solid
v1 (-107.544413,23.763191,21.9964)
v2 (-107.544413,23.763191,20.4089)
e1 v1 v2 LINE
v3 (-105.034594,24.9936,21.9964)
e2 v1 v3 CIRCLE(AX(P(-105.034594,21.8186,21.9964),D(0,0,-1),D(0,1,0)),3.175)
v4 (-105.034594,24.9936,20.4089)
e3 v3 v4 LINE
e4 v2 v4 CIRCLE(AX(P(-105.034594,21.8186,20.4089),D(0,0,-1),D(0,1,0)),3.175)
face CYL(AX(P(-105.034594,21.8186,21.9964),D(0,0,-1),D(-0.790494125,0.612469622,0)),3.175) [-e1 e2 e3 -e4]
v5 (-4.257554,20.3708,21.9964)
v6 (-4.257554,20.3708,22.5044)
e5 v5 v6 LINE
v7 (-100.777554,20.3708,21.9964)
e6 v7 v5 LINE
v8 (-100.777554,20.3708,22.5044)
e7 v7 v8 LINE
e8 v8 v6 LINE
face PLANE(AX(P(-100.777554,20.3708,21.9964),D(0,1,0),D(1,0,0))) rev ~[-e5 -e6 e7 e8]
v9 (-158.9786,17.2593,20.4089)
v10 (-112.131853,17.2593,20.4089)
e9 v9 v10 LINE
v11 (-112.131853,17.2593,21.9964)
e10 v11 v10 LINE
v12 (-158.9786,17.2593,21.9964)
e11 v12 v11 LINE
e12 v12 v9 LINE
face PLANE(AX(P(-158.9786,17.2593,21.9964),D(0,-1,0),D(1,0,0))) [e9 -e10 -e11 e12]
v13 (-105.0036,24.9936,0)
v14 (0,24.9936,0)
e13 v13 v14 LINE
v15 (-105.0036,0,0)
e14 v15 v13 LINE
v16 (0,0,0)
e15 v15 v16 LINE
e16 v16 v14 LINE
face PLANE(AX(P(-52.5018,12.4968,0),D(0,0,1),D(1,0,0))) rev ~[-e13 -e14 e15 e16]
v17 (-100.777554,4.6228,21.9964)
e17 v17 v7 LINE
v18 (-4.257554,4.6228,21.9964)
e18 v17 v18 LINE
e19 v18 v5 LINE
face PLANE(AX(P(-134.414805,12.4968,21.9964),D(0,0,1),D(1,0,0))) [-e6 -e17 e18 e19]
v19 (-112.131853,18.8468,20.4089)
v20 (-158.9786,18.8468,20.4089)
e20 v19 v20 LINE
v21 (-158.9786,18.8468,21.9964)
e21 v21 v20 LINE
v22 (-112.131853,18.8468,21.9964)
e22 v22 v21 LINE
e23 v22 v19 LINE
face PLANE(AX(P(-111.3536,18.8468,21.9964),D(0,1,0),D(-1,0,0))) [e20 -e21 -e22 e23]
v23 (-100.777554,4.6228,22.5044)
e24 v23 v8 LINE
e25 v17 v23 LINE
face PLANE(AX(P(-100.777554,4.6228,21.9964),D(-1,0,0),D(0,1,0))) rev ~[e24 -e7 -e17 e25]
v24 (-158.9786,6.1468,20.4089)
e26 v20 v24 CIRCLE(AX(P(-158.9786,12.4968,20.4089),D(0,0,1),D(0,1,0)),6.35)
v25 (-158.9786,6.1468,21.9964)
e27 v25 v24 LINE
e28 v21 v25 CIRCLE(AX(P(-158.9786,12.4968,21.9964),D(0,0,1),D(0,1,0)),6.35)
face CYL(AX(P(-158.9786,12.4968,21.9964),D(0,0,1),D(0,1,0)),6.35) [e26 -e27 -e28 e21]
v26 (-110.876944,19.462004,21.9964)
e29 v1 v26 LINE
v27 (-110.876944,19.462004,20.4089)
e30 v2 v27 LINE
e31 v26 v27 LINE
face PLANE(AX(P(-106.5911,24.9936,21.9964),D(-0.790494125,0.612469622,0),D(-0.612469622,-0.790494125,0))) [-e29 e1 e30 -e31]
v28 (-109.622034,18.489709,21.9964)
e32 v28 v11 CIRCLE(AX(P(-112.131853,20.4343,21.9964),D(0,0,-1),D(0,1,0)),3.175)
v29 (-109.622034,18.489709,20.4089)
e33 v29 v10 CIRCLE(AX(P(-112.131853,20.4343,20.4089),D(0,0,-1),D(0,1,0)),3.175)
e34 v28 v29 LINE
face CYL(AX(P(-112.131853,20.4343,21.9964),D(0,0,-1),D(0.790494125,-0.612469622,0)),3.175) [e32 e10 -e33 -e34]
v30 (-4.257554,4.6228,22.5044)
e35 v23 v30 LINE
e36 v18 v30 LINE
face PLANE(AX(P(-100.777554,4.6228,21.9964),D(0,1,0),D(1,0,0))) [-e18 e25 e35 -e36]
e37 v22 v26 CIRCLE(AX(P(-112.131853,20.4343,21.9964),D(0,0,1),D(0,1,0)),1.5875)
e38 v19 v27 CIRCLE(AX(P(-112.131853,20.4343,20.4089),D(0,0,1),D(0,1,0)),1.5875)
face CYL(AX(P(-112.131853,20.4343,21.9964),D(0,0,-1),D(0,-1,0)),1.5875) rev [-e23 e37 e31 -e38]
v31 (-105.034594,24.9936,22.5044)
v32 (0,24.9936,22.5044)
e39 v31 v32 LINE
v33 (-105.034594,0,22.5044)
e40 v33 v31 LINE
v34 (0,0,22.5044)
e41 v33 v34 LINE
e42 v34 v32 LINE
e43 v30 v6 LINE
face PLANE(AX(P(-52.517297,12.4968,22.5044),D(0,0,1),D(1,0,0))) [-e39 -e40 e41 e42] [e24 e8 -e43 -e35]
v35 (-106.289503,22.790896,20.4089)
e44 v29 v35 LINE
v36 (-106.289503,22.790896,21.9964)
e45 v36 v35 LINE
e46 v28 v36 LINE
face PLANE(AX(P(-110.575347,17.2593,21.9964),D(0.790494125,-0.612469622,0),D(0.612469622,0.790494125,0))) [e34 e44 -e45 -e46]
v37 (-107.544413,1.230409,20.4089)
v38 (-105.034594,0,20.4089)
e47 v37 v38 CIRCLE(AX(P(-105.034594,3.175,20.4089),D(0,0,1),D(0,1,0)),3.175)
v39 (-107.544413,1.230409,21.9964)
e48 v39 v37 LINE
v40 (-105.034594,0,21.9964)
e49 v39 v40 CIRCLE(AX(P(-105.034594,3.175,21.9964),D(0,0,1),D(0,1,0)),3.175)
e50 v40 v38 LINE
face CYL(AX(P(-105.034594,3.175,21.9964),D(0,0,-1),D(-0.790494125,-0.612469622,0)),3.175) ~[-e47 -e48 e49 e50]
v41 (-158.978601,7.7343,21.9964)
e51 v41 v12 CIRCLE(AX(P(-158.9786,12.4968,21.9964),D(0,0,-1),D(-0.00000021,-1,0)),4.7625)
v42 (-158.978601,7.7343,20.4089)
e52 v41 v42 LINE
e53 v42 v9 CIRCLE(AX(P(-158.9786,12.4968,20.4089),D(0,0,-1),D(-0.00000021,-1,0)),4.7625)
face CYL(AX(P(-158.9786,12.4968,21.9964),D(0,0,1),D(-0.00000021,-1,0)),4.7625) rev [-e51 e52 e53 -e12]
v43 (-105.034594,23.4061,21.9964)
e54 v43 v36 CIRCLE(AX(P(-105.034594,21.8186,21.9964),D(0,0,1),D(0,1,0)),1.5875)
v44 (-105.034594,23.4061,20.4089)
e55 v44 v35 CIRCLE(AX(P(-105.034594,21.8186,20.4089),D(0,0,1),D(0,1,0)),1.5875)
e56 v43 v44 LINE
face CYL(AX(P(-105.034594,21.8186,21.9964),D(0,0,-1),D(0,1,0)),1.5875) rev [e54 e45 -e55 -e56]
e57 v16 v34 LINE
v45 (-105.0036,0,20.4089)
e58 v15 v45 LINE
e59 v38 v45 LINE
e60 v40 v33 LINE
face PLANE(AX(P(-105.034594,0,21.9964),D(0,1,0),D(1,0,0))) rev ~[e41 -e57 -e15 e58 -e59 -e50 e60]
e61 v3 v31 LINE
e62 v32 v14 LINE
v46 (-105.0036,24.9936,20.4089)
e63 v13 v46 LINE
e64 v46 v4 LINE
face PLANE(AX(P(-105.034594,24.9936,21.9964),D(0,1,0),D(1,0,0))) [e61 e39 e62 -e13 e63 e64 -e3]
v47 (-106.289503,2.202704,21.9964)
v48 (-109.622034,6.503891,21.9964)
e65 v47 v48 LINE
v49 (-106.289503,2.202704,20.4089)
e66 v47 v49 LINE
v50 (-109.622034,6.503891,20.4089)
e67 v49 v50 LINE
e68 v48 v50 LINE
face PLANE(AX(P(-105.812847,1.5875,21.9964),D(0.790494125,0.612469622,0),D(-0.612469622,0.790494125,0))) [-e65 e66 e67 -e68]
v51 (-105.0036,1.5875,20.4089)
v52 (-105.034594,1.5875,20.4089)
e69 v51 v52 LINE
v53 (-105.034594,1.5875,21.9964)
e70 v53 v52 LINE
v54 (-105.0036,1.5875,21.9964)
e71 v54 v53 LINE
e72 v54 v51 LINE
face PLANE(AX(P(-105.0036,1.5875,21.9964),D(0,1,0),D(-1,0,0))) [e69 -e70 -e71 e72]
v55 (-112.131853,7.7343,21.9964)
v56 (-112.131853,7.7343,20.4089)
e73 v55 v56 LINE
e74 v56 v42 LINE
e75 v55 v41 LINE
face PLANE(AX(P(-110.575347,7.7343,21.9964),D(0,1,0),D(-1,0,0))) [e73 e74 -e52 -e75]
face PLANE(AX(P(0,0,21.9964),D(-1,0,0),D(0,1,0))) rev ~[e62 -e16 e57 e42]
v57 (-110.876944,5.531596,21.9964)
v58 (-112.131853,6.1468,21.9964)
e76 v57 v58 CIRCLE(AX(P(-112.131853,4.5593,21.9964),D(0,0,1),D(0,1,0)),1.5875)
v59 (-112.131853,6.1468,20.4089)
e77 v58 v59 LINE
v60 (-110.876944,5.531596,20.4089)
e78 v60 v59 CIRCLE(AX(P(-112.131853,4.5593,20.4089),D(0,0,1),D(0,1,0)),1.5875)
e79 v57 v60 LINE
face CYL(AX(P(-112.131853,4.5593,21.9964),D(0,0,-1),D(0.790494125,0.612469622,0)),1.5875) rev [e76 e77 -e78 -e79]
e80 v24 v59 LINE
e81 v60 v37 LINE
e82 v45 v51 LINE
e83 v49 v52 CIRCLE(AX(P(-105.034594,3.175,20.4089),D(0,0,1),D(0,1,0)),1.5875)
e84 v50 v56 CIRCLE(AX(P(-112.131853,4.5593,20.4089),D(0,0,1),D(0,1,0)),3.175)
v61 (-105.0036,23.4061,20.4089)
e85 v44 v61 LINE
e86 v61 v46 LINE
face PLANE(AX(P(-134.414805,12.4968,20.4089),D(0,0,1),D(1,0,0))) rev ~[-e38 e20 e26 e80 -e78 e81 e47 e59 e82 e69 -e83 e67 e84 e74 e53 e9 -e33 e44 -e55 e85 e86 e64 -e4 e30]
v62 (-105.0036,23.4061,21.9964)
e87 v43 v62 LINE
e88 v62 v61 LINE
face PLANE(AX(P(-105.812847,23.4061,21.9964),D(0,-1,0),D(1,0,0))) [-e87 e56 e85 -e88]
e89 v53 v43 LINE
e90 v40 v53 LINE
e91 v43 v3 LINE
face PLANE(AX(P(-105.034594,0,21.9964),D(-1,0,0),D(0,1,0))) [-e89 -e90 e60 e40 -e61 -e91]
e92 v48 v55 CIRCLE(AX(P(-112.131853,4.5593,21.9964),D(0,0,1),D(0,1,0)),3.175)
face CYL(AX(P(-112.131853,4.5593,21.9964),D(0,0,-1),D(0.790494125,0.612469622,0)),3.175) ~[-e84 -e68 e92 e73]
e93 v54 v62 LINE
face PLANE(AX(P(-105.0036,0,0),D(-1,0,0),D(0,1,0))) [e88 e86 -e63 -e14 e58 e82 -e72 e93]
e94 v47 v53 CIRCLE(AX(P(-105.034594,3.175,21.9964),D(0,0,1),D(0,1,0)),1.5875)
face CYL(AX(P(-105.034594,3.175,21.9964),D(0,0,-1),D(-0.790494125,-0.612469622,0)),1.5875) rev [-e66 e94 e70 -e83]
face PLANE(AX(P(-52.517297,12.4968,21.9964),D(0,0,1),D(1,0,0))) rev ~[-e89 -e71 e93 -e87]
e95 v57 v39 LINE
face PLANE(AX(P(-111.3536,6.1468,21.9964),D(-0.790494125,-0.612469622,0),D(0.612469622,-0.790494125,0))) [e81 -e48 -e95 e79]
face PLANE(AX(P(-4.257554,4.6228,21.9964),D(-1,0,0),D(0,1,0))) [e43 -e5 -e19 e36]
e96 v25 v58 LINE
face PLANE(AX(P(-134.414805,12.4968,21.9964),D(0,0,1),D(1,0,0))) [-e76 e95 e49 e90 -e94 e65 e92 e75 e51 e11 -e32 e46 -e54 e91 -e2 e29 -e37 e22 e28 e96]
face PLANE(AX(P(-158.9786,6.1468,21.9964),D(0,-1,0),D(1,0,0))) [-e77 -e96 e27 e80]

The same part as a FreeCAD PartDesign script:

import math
import FreeCAD as App
import Part
import Sketcher

V = App.Vector
Q = App.Units.Quantity


def edges_at(feature, points):
    """Names of the edges that pass closest to the given points."""
    edges = feature.Shape.Edges
    near = lambda p: min(range(len(edges)), key=lambda i: edges[i].distToShape(Part.Vertex(*p))[0])
    return sorted({f"Edge{near(p) + 1}" for p in points})


def add_polygon(sketch, points):
    """Adds a closed chain of lines whose ends are joined by coincident constraints."""
    first, n = sketch.GeometryCount, len(points)
    for a, b in zip(points, points[1:] + points[:1]):
        sketch.addGeometry(Part.LineSegment(App.Vector(*a, 0), App.Vector(*b, 0)), False)
    for i in range(n):
        sketch.addConstraint(Sketcher.Constraint("Coincident", first + i, 2, first + (i + 1) % n, 1))

doc = App.newDocument("Part")
body = doc.addObject("PartDesign::Body", "Body")

# Sketch on XY plane
sketch1 = body.newObject("Sketcher::SketchObject", "Sketch")
sketch1.AttachmentSupport = (doc.getObject("XY_Plane"), [""])
sketch1.MapMode = "FlatFace"
add_polygon(sketch1, [(-105, 25), (-105, 0), (0, 0), (0, 25)])  # lines 0-3
sketch1.addConstraint([
    Sketcher.Constraint("Vertical", 0),
    Sketcher.Constraint("Horizontal", 1),
    Sketcher.Constraint("Vertical", 2),
    Sketcher.Constraint("Horizontal", 3),
    Sketcher.Constraint("Coincident", 1, 2, -1, 1),
    Sketcher.Constraint("DistanceX", 1, 1, 1, 2, Q("4.134 in")),
    Sketcher.Constraint("DistanceY", 0, 2, 0, 1, Q("0.984 in")),
])
pad1 = body.newObject("PartDesign::Pad", "Pad")
pad1.Profile = sketch1
pad1.Length = Q("0.866 in")

# Sketch on XY plane
sketch2 = body.newObject("Sketcher::SketchObject", "Sketch001")
sketch2.AttachmentSupport = (doc.getObject("XY_Plane"), [""])
sketch2.MapMode = "FlatFace"
sketch2.AttachmentOffset = App.Placement(V(0, 0, 0.866 * 25.4), App.Rotation())
sketch2.addGeometry([
    Part.LineSegment(V(-111.4, 18.8, 0), V(-159, 18.8, 0)),  # 0
    Part.ArcOfCircle(Part.Circle(V(-159, 12.5, 0), V(0, 0, 1), 6.3), math.radians(90), math.radians(270)),  # 1
    Part.LineSegment(V(-159, 6.1, 0), V(-111.4, 6.1, 0)),  # 2
    Part.LineSegment(V(-111.4, 6.1, 0), V(-106.6, 0, 0)),  # 3
    Part.LineSegment(V(-106.6, 0, 0), V(-105, 0, 0)),  # 4
    Part.LineSegment(V(-105, 0, 0), V(-105, 1.6, 0)),  # 5
    Part.LineSegment(V(-105, 1.6, 0), V(-105.8, 1.6, 0)),  # 6
    Part.LineSegment(V(-105.8, 1.6, 0), V(-110.6, 7.7, 0)),  # 7
    Part.LineSegment(V(-110.6, 7.7, 0), V(-159, 7.7, 0)),  # 8
    Part.ArcOfCircle(Part.Circle(V(-159, 12.5, 0), V(0, 0, 1), 4.8), math.radians(90), math.radians(270)),  # 9
    Part.LineSegment(V(-159, 17.3, 0), V(-110.6, 17.3, 0)),  # 10
    Part.LineSegment(V(-110.6, 17.3, 0), V(-105.8, 23.4, 0)),  # 11
    Part.LineSegment(V(-105.8, 23.4, 0), V(-105, 23.4, 0)),  # 12
    Part.LineSegment(V(-105, 23.4, 0), V(-105, 25, 0)),  # 13
    Part.LineSegment(V(-105, 25, 0), V(-106.6, 25, 0)),  # 14
    Part.LineSegment(V(-106.6, 25, 0), V(-111.4, 18.8, 0)),  # 15
], False)
sketch2.addConstraint([
    Sketcher.Constraint("Tangent", 0, 2, 1, 1),
    Sketcher.Constraint("Tangent", 1, 2, 2, 1),
    Sketcher.Constraint("Coincident", 2, 2, 3, 1),
    Sketcher.Constraint("Coincident", 3, 2, 4, 1),
    Sketcher.Constraint("Coincident", 4, 2, 5, 1),
    Sketcher.Constraint("Coincident", 5, 2, 6, 1),
    Sketcher.Constraint("Coincident", 6, 2, 7, 1),
    Sketcher.Constraint("Coincident", 7, 2, 8, 1),
    Sketcher.Constraint("Tangent", 8, 2, 9, 2),
    Sketcher.Constraint("Tangent", 9, 1, 10, 1),
    Sketcher.Constraint("Coincident", 10, 2, 11, 1),
    Sketcher.Constraint("Coincident", 11, 2, 12, 1),
    Sketcher.Constraint("Coincident", 12, 2, 13, 1),
    Sketcher.Constraint("Coincident", 13, 2, 14, 1),
    Sketcher.Constraint("Coincident", 14, 2, 15, 1),
    Sketcher.Constraint("Coincident", 15, 2, 0, 1),
    Sketcher.Constraint("Horizontal", 0),
    Sketcher.Constraint("Horizontal", 2),
    Sketcher.Constraint("Horizontal", 4),
    Sketcher.Constraint("Vertical", 5),
    Sketcher.Constraint("Horizontal", 6),
    Sketcher.Constraint("Horizontal", 8),
    Sketcher.Constraint("Horizontal", 10),
    Sketcher.Constraint("Horizontal", 12),
    Sketcher.Constraint("Vertical", 13),
    Sketcher.Constraint("Horizontal", 14),
    Sketcher.Constraint("Coincident", 9, 3, 1, 3),
    Sketcher.Constraint("PointOnObject", 3, 2, -1),
    Sketcher.Constraint("Parallel", 3, 7),
    Sketcher.Constraint("Parallel", 11, 15),
    Sketcher.Constraint("Vertical", 7, 2, 10, 2),
    Sketcher.Constraint("Vertical", 6, 2, 11, 2),
    Sketcher.Constraint("Vertical", 5, 2, 12, 2),
    Sketcher.Constraint("Vertical", 3, 2, 14, 2),
    Sketcher.Constraint("Vertical", 2, 2, 15, 2),
    Sketcher.Constraint("Equal", 14, 5),
    Sketcher.Constraint("Equal", 3, 7),
    Sketcher.Constraint("Equal", 7, 11),
    Sketcher.Constraint("Radius", 1, Q("0.25 in")),
    Sketcher.Constraint("Radius", 9, Q("0.1875 in")),
    Sketcher.Constraint("DistanceX", 0, 2, 0, 1, Q("1.875 in")),
    Sketcher.Constraint("DistanceX", 2, 2, 4, 2, Q("0.25 in")),
    Sketcher.Constraint("DistanceX", 1, 3, -1, 1, Q("6.259 in")),
    Sketcher.Constraint("DistanceY", -1, 1, 1, 3, Q("0.492 in")),
    Sketcher.Constraint("DistanceX", 6, 2, 6, 1, Q("0.809247 mm")),
])
pad2 = body.newObject("PartDesign::Pad", "Pad001")
pad2.Profile = sketch2
pad2.Length = Q("0.0625 in")
pad2.Reversed = True
doc.recompute()

fillet = body.newObject("PartDesign::Fillet", "Fillet")
fillet.Base = (pad2, edges_at(pad2, [
    (-111.354, 18.847, 21.203),
    (-105.813, 23.406, 21.203),
    (-111.354, 6.147, 21.203),
    (-105.813, 1.587, 21.203),
]))
fillet.Radius = Q("0.0625 in")
doc.recompute()

fillet2 = body.newObject("PartDesign::Fillet", "Fillet001")
fillet2.Base = (fillet, edges_at(fillet, [
    (-110.575, 7.734, 21.203),
    (-106.591, 24.994, 21.203),
    (-110.575, 17.259, 21.203),
    (-106.591, 0, 21.203),
]))
fillet2.Radius = Q("0.125 in")

# Sketch on XY plane
sketch3 = body.newObject("Sketcher::SketchObject", "Sketch002")
sketch3.AttachmentSupport = (doc.getObject("XY_Plane"), [""])
sketch3.MapMode = "FlatFace"
sketch3.AttachmentOffset = App.Placement(V(0, 0, 0.866 * 25.4), App.Rotation())
add_polygon(sketch3, [(-105, 25), (-105, 0), (0, 0), (0, 25)])  # lines 0-3
add_polygon(sketch3, [(-4, 5), (-101, 5), (-101, 20), (-4, 20)])  # lines 4-7
sketch3.addConstraint([
    Sketcher.Constraint("Vertical", 0),
    Sketcher.Constraint("Horizontal", 1),
    Sketcher.Constraint("Vertical", 2),
    Sketcher.Constraint("Horizontal", 3),
    Sketcher.Constraint("Horizontal", 4),
    Sketcher.Constraint("Vertical", 5),
    Sketcher.Constraint("Horizontal", 6),
    Sketcher.Constraint("Vertical", 7),
    Sketcher.Constraint("Coincident", 1, 2, -1, 1),
    Sketcher.Constraint("DistanceX", 4, 2, 4, 1, Q("3.8 in")),
    Sketcher.Constraint("DistanceY", 5, 1, 5, 2, Q("0.62 in")),
    Sketcher.Constraint("DistanceY", 0, 2, 0, 1, Q("0.984 in")),
    Sketcher.Constraint("DistanceY", -1, 1, 4, 2, Q("0.182 in")),
    Sketcher.Constraint("DistanceX", 0, 2, 4, 2, Q("0.1676 in")),
    Sketcher.Constraint("DistanceX", 1, 1, 1, 2, Q("105.034594 mm")),
])
pad3 = body.newObject("PartDesign::Pad", "Pad002")
pad3.Profile = sketch3
pad3.Length = Q("0.02 in")

doc.recompute()
